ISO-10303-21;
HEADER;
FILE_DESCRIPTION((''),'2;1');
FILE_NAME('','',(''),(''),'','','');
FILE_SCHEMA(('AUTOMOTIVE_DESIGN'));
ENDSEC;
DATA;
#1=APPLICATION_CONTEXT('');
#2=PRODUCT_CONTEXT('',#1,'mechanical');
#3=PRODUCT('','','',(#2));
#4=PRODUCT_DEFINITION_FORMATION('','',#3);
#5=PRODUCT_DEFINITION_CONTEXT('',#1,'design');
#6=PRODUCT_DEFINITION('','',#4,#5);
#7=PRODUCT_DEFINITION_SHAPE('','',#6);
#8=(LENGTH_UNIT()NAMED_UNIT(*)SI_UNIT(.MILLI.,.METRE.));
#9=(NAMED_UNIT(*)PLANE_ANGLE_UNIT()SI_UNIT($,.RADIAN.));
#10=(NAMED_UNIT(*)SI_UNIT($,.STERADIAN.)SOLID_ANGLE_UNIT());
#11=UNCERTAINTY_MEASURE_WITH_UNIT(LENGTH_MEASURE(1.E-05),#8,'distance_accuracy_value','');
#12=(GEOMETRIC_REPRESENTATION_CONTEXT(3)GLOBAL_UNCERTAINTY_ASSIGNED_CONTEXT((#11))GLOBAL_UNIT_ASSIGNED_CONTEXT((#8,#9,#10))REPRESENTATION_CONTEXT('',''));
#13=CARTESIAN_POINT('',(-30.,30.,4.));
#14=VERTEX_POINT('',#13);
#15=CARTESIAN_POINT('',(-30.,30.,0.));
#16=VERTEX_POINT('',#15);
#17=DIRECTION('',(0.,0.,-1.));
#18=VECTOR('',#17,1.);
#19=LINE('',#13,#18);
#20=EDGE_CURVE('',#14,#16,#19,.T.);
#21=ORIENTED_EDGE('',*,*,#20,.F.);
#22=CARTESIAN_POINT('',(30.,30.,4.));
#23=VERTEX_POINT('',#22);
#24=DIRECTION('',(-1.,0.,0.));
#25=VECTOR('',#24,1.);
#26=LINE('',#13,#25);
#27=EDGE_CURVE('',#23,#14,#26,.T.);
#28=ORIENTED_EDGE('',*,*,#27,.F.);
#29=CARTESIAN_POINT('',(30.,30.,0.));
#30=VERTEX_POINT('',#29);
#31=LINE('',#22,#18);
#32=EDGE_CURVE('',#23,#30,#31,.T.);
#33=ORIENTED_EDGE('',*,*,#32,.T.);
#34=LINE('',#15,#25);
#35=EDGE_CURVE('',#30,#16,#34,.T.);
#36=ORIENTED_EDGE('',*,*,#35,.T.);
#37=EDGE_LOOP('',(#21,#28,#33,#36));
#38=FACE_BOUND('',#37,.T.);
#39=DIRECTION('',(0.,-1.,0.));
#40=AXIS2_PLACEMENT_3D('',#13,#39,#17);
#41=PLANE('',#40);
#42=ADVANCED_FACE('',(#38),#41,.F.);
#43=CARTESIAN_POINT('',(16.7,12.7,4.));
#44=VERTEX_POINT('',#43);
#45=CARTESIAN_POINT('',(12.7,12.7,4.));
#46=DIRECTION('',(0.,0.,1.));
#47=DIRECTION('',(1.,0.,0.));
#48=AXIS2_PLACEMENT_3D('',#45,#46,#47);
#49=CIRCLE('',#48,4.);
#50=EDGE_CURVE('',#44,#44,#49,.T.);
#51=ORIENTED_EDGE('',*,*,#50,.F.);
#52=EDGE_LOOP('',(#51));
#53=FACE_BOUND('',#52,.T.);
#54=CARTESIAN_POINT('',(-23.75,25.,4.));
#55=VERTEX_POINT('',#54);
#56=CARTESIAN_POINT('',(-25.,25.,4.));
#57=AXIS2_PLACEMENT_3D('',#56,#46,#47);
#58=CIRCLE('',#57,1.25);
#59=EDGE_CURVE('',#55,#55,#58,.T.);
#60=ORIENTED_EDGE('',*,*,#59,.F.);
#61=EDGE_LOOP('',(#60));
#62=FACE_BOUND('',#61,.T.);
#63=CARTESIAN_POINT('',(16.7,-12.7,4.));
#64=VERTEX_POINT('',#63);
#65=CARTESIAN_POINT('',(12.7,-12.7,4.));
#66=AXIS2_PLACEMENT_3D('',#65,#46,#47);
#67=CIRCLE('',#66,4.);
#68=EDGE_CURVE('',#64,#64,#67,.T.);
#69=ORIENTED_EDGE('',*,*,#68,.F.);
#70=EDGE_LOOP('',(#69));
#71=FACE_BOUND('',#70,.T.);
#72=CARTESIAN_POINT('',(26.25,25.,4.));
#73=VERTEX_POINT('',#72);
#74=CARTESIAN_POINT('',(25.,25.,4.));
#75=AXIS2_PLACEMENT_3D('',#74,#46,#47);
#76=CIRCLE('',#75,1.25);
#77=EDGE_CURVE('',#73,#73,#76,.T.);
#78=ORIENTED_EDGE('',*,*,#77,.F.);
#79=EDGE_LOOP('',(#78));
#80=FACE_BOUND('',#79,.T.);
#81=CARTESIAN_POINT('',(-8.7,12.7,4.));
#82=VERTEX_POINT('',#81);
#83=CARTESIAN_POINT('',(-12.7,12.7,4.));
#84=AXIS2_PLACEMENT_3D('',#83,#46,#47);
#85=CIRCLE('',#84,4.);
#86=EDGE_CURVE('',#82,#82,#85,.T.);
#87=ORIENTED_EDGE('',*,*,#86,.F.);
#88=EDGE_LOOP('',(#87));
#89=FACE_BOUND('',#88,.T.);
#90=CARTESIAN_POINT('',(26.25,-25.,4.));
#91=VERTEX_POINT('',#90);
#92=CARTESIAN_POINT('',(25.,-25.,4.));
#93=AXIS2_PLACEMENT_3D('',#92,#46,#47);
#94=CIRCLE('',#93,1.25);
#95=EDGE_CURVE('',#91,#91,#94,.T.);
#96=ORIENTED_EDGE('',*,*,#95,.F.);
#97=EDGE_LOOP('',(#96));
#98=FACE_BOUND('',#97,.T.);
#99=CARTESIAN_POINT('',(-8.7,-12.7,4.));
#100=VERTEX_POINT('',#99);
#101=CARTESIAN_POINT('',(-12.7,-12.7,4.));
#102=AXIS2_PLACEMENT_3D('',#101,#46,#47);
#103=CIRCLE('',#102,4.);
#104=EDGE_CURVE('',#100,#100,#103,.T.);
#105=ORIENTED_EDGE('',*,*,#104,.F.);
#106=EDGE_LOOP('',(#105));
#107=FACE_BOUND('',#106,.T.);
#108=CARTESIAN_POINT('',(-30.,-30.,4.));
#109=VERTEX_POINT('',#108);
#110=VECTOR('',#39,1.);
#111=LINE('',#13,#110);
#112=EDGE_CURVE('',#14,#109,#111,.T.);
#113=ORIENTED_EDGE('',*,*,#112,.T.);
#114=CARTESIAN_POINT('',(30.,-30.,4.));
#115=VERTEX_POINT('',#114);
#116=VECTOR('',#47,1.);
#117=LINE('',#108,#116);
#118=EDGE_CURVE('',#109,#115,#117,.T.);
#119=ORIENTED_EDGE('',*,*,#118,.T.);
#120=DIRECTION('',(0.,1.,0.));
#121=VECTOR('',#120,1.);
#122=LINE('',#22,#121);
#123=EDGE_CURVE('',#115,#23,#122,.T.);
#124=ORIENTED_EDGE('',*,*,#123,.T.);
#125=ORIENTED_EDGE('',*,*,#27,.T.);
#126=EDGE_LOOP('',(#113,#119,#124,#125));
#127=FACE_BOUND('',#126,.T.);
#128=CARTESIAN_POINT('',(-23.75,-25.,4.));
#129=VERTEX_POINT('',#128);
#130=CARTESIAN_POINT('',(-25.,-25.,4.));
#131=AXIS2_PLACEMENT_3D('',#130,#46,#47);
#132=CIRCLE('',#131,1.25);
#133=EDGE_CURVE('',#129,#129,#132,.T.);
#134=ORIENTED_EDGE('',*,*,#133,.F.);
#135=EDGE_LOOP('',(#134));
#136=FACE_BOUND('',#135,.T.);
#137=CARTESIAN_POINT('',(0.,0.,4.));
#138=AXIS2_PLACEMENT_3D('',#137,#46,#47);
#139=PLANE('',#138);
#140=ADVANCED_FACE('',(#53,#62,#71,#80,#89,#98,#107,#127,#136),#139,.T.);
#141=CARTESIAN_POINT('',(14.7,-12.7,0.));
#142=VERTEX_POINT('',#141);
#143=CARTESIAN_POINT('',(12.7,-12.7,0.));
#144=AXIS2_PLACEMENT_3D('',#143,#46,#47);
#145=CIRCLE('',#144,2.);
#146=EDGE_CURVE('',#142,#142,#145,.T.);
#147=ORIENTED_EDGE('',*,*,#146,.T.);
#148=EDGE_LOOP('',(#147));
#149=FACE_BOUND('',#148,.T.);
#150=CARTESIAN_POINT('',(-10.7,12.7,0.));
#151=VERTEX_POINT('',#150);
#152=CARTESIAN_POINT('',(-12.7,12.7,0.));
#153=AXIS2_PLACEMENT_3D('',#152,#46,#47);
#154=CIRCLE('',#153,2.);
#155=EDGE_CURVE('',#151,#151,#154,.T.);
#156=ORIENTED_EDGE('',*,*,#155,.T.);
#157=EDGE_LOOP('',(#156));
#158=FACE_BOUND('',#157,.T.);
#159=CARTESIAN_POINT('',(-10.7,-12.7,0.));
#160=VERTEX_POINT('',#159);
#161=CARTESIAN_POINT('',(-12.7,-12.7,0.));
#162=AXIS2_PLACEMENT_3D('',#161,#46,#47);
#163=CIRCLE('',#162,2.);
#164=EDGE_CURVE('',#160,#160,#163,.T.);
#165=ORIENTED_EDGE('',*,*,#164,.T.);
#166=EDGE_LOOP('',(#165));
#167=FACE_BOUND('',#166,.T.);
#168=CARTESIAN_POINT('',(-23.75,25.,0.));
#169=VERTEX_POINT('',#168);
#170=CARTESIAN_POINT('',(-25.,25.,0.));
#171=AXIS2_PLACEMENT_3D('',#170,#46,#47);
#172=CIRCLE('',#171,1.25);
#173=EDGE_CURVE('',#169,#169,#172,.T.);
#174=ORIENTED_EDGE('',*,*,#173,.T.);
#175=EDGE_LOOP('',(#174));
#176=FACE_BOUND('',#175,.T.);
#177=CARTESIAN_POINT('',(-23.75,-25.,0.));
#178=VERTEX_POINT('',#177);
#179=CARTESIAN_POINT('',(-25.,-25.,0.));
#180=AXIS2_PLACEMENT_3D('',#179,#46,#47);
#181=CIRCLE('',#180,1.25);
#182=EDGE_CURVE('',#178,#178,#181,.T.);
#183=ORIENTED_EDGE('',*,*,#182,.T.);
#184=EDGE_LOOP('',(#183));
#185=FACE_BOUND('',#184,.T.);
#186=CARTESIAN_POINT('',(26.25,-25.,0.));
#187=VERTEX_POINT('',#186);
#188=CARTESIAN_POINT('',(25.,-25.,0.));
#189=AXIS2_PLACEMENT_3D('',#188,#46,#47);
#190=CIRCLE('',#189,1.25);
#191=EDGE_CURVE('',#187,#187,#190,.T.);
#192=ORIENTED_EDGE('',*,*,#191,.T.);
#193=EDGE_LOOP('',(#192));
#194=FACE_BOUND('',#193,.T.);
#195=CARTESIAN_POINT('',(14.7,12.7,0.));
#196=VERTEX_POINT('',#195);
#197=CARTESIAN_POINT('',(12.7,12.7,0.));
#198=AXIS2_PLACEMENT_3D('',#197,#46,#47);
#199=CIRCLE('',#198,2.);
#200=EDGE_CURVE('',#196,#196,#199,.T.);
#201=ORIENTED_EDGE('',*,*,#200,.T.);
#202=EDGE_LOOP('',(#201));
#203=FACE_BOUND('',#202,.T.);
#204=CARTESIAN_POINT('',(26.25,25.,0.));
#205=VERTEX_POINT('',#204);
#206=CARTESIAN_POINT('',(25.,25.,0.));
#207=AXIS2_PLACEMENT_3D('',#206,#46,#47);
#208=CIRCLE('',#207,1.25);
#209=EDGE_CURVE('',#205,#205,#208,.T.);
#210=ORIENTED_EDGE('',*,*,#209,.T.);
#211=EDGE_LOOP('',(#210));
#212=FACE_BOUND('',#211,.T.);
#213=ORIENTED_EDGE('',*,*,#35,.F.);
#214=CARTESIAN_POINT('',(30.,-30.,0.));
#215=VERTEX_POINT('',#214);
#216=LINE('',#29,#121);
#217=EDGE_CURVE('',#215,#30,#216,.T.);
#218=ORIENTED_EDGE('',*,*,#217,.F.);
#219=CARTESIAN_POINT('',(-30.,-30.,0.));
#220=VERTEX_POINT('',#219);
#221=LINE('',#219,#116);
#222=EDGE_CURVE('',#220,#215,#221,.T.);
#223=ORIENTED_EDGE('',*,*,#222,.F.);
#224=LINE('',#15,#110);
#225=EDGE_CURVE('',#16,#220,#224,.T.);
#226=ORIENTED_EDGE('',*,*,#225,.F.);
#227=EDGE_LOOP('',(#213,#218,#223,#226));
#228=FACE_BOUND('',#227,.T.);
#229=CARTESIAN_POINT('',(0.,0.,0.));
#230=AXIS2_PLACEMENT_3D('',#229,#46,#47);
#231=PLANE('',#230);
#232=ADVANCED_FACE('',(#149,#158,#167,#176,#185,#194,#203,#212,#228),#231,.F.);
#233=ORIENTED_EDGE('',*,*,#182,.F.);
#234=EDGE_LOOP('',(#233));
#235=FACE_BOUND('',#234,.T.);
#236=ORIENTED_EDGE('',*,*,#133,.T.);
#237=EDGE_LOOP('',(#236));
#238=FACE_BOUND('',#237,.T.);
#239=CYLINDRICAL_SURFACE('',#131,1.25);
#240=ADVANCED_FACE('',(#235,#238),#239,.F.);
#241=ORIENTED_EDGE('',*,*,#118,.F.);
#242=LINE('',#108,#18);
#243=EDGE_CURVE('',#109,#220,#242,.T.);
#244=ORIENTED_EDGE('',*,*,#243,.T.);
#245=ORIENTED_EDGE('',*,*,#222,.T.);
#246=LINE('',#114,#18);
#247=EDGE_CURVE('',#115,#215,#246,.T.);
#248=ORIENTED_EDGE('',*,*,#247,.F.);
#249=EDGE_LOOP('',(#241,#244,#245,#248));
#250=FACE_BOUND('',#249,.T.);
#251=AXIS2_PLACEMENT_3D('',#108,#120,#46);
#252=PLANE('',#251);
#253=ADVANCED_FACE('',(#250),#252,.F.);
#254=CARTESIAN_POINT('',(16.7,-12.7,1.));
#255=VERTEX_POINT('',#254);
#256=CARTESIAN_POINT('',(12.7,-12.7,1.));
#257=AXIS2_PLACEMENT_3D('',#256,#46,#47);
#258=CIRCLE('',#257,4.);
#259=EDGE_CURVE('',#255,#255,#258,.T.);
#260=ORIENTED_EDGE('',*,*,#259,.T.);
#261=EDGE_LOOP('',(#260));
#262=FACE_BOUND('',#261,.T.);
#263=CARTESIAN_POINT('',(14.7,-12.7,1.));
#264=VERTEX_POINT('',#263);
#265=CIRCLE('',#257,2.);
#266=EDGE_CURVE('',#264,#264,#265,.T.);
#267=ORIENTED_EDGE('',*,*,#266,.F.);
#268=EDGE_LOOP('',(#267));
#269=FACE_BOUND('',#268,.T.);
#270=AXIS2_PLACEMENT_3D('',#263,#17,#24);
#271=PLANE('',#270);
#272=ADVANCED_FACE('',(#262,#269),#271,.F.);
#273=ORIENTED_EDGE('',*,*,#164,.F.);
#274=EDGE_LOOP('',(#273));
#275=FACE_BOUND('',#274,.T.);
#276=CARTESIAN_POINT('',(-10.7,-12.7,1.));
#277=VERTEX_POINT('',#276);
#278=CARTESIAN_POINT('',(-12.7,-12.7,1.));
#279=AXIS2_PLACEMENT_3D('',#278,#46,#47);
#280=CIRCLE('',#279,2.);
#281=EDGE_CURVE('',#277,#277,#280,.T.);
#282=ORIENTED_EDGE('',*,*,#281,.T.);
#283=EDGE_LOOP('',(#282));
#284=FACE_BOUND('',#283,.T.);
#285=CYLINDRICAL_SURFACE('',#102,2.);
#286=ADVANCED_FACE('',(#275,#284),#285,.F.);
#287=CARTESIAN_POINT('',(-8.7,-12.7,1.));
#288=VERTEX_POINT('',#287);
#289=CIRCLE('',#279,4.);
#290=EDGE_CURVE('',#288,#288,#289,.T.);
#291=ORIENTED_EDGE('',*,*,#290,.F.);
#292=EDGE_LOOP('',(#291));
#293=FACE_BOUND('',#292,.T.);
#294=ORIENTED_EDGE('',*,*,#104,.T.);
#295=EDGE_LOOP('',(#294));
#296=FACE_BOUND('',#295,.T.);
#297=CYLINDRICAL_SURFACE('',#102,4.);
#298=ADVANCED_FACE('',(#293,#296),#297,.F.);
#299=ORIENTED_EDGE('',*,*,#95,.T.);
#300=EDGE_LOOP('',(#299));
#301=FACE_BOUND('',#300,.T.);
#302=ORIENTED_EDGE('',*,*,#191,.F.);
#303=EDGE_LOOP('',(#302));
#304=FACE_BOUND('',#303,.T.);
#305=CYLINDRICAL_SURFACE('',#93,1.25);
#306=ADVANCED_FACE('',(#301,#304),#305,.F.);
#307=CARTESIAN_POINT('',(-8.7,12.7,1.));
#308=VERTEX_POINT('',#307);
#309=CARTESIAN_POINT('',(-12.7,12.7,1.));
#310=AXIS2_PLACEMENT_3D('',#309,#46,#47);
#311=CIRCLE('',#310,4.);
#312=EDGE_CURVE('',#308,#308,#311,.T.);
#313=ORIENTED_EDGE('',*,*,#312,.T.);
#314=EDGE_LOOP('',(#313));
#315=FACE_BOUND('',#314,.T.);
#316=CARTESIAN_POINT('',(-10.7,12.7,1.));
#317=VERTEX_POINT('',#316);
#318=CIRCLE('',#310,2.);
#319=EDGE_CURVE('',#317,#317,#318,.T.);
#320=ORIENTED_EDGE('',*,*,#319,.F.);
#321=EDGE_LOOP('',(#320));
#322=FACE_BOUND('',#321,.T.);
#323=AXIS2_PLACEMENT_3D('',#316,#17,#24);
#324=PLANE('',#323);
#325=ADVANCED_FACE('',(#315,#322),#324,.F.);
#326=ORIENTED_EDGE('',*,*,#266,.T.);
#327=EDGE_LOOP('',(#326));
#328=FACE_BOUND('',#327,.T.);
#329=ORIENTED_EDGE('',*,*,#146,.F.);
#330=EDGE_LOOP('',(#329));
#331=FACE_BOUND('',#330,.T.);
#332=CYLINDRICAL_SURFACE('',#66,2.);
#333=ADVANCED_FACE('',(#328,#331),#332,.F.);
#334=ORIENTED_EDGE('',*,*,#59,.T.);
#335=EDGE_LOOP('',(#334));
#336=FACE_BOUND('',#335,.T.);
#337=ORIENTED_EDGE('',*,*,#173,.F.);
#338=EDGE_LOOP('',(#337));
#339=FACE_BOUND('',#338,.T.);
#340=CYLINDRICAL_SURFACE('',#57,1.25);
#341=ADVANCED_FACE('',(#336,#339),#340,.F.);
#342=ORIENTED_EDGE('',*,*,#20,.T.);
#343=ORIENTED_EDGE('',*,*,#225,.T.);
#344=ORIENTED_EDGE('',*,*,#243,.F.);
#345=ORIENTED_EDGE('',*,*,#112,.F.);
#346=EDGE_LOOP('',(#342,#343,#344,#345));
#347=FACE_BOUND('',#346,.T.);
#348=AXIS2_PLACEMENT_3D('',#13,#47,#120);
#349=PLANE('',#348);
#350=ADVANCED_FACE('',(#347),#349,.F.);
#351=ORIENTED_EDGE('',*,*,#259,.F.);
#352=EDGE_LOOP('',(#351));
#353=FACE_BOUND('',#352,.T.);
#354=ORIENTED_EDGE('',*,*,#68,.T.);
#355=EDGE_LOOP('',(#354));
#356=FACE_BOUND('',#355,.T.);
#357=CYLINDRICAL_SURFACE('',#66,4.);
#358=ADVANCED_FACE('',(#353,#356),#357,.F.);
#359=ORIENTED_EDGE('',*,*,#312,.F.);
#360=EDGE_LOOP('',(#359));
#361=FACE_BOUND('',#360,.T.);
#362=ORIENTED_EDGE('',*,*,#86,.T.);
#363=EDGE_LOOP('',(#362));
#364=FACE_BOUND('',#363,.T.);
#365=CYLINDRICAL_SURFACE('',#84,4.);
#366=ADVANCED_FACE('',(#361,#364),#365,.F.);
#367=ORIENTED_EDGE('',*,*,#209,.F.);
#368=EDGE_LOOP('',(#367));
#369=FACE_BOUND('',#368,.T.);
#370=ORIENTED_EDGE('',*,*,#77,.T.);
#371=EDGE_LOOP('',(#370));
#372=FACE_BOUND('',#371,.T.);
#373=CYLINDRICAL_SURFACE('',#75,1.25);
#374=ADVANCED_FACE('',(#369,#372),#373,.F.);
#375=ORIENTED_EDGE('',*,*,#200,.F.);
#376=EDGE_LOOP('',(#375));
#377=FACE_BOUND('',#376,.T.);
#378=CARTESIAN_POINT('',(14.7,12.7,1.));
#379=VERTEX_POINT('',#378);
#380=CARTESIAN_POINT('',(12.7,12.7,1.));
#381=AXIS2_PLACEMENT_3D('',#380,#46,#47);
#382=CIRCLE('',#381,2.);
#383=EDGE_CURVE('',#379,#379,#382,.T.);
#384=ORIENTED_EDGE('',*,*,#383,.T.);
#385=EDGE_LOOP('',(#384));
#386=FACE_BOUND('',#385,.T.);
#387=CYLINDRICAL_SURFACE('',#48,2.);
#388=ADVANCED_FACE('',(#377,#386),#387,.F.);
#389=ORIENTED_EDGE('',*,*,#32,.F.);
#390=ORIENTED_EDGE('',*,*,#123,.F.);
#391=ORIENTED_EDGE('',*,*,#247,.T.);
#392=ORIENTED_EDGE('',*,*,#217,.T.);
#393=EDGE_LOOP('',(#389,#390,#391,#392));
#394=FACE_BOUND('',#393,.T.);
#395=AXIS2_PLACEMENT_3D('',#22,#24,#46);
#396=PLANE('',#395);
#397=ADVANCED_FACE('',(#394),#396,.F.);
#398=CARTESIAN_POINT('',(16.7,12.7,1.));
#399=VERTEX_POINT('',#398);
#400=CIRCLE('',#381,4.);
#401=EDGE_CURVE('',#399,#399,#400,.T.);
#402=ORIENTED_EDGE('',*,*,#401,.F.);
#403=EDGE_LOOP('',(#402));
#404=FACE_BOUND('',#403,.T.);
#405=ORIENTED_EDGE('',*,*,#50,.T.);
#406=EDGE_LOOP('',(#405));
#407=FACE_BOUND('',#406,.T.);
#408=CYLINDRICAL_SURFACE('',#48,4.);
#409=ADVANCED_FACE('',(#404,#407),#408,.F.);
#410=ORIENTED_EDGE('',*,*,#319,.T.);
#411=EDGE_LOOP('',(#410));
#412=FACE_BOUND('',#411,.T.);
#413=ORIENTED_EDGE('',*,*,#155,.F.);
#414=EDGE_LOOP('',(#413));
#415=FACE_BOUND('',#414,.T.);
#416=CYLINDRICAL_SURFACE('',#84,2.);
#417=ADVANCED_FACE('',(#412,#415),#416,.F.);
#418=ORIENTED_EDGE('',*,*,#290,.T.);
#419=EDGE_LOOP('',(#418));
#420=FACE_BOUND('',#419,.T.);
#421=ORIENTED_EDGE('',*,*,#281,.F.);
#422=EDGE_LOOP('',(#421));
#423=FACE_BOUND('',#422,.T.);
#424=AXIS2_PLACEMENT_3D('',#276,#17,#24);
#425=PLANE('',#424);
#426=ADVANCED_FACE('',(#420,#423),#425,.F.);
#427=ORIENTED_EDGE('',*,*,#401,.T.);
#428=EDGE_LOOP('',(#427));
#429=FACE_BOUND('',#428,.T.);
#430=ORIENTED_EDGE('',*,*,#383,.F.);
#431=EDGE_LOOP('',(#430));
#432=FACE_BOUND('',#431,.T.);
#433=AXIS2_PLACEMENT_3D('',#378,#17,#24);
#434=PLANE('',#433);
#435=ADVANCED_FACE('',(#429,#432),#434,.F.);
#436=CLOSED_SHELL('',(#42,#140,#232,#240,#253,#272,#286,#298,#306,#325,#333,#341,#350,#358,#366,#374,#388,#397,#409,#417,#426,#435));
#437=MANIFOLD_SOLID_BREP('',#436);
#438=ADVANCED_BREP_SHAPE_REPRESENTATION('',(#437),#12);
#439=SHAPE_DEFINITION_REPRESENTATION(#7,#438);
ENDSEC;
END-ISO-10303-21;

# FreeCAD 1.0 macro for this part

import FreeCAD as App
import Part
import Sketcher

V = App.Vector
Q = App.Units.Quantity


def add_polygon(sketch, points):
    """Adds a closed chain of lines whose ends are joined by coincident constraints."""
    first, n = sketch.GeometryCount, len(points)
    for a, b in zip(points, points[1:] + points[:1]):
        sketch.addGeometry(Part.LineSegment(App.Vector(*a, 0), App.Vector(*b, 0)), False)
    for i in range(n):
        sketch.addConstraint(Sketcher.Constraint("Coincident", first + i, 2, first + (i + 1) % n, 1))

doc = App.newDocument("Part")
body = doc.addObject("PartDesign::Body", "Body")

# Sketch on XY plane
sketch1 = body.newObject("Sketcher::SketchObject", "Sketch")
sketch1.AttachmentSupport = (doc.getObject("XY_Plane"), [""])
sketch1.MapMode = "FlatFace"
add_polygon(sketch1, [(-30, 30), (-30, -30), (30, -30), (30, 30)])  # lines 0-3
sketch1.addConstraint([
    Sketcher.Constraint("Vertical", 0),
    Sketcher.Constraint("Horizontal", 1),
    Sketcher.Constraint("Vertical", 2),
    Sketcher.Constraint("Horizontal", 3),
    Sketcher.Constraint("Symmetric", 0, 2, 2, 2, -1, 1),
    Sketcher.Constraint("Equal", 3, 0),
    Sketcher.Constraint("DistanceX", 1, 1, 1, 2, Q("60 mm")),
])
pad1 = body.newObject("PartDesign::Pad", "Pad")
pad1.Profile = sketch1
pad1.Length = 4

# Sketch on XY plane
sketch2 = body.newObject("Sketcher::SketchObject", "Sketch001")
sketch2.AttachmentSupport = (doc.getObject("XY_Plane"), [""])
sketch2.MapMode = "FlatFace"
sketch2.AttachmentOffset = App.Placement(V(0, 0, 4), App.Rotation())
sketch2.addGeometry([
    Part.Circle(V(-25, 25, 0), V(0, 0, 1), 1.2),
    Part.Circle(V(25, 25, 0), V(0, 0, 1), 1.2),
    Part.Circle(V(25, -25, 0), V(0, 0, 1), 1.2),
    Part.Circle(V(-25, -25, 0), V(0, 0, 1), 1.2),
], False)
sketch2.addConstraint([
    Sketcher.Constraint("Equal", 0, 1),
    Sketcher.Constraint("Equal", 1, 2),
    Sketcher.Constraint("Equal", 2, 3),
    Sketcher.Constraint("Symmetric", 0, 3, 2, 3, -1, 1),
    Sketcher.Constraint("Symmetric", 1, 3, 3, 3, -1, 1),
    Sketcher.Constraint("Symmetric", 0, 3, 1, 3, -2),
    Sketcher.Constraint("Diameter", 0, Q("2.5 mm")),
    Sketcher.Constraint("DistanceX", 0, 3, -1, 1, Q("25 mm")),
    Sketcher.Constraint("DistanceY", -1, 1, 0, 3, Q("25 mm")),
])
doc.recompute()
hole = body.newObject("PartDesign::Hole", "Hole")
hole.Profile = sketch2
hole.ThreadType = "None"
hole.Diameter = 2.5
hole.DepthType = "ThroughAll"

# Sketch on XY plane
sketch3 = body.newObject("Sketcher::SketchObject", "Sketch002")
sketch3.AttachmentSupport = (doc.getObject("XY_Plane"), [""])
sketch3.MapMode = "FlatFace"
sketch3.AttachmentOffset = App.Placement(V(0, 0, 4), App.Rotation())
sketch3.addGeometry([
    Part.Circle(V(-12.7, 12.7, 0), V(0, 0, 1), 2),
    Part.Circle(V(12.7, 12.7, 0), V(0, 0, 1), 2),
    Part.Circle(V(12.7, -12.7, 0), V(0, 0, 1), 2),
    Part.Circle(V(-12.7, -12.7, 0), V(0, 0, 1), 2),
], False)
sketch3.addConstraint([
    Sketcher.Constraint("Equal", 0, 1),
    Sketcher.Constraint("Equal", 1, 2),
    Sketcher.Constraint("Equal", 2, 3),
    Sketcher.Constraint("Symmetric", 0, 3, 2, 3, -1, 1),
    Sketcher.Constraint("Symmetric", 1, 3, 3, 3, -1, 1),
    Sketcher.Constraint("Symmetric", 0, 3, 1, 3, -2),
    Sketcher.Constraint("Diameter", 0, Q("4 mm")),
    Sketcher.Constraint("DistanceX", 0, 3, -1, 1, Q("12.7 mm")),
    Sketcher.Constraint("DistanceY", -1, 1, 0, 3, Q("12.7 mm")),
])
doc.recompute()
hole2 = body.newObject("PartDesign::Hole", "Hole001")
hole2.Profile = sketch3
hole2.ThreadType = "None"
hole2.Diameter = 4
hole2.DepthType = "ThroughAll"
hole2.HoleCutType = "Counterbore"
hole2.HoleCutDiameter = 8
hole2.HoleCutDepth = 3

doc.recompute()
